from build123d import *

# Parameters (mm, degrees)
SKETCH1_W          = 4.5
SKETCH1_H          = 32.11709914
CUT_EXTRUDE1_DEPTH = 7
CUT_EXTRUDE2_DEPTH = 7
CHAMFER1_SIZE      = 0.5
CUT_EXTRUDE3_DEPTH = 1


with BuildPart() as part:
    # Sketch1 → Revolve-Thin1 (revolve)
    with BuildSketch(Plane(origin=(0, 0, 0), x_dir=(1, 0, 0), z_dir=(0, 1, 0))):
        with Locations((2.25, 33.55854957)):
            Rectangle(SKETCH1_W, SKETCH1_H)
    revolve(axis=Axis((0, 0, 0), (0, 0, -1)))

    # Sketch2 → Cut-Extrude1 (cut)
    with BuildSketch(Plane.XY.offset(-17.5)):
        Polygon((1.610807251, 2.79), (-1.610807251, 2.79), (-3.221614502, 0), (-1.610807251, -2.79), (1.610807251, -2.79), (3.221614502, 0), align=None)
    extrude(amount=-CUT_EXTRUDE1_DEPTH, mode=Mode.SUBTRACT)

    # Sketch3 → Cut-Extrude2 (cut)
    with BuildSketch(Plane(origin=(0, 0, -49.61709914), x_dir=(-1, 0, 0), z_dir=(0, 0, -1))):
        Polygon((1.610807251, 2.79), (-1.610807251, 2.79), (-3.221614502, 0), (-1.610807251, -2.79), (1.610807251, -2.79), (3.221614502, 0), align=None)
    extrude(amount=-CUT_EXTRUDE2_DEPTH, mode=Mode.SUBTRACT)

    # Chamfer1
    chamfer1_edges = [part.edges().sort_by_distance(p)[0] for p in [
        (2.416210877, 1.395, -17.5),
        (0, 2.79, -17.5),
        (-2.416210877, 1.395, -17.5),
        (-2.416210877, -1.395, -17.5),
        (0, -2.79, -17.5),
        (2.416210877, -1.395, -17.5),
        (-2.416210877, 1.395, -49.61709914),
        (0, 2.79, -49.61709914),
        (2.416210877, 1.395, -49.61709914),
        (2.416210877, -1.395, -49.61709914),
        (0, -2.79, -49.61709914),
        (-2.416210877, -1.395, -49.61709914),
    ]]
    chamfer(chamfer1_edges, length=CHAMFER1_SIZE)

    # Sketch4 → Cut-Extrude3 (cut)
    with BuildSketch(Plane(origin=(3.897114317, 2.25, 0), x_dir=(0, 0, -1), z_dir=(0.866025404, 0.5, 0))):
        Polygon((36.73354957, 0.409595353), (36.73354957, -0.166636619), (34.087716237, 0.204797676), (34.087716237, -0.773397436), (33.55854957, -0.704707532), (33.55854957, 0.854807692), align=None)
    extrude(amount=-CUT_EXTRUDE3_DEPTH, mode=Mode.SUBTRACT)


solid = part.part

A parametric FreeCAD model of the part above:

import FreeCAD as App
import Part
import Sketcher
Q = App.Units.Quantity


def edges_at(feature, points):
    """Names of the edges that pass closest to the given points."""
    edges = feature.Shape.Edges
    near = lambda p: min(range(len(edges)), key=lambda i: edges[i].distToShape(Part.Vertex(*p))[0])
    return sorted({f"Edge{near(p) + 1}" for p in points})


def add_polygon(sketch, points):
    """Adds a closed chain of lines whose ends are joined by coincident constraints."""
    first, n = sketch.GeometryCount, len(points)
    for a, b in zip(points, points[1:] + points[:1]):
        sketch.addGeometry(Part.LineSegment(App.Vector(*a, 0), App.Vector(*b, 0)), False)
    for i in range(n):
        sketch.addConstraint(Sketcher.Constraint("Coincident", first + i, 2, first + (i + 1) % n, 1))

doc = App.newDocument("Part")
body = doc.addObject("PartDesign::Body", "Body")

# Sketch on XZ plane
sketch1 = body.newObject("Sketcher::SketchObject", "Sketch")
sketch1.AttachmentSupport = (doc.getObject("XZ_Plane"), [""])
sketch1.MapMode = "FlatFace"
add_polygon(sketch1, [(0, -49.617099), (0, -17.5), (4.5, -17.5), (4.5, -49.617099)])  # lines 0-3
sketch1.addConstraint([
    Sketcher.Constraint("Vertical", 0),
    Sketcher.Constraint("Horizontal", 1),
    Sketcher.Constraint("Vertical", 2),
    Sketcher.Constraint("Horizontal", 3),
    Sketcher.Constraint("PointOnObject", 0, 2, -2),
    Sketcher.Constraint("DistanceX", 1, 1, 1, 2, Q("4.5 mm")),
    Sketcher.Constraint("DistanceY", 0, 2, -1, 1, Q("17.5 mm")),
    Sketcher.Constraint("DistanceY", 0, 1, 0, 2, Q("32.117099 mm")),
])
revolution = body.newObject("PartDesign::Revolution", "Revolution")
revolution.Profile = sketch1
revolution.ReferenceAxis = (sketch1, ["V_Axis"])
revolution.Angle = 360

# Sketch on XY plane
sketch2 = body.newObject("Sketcher::SketchObject", "Sketch001")
sketch2.AttachmentSupport = (doc.getObject("XY_Plane"), [""])
sketch2.MapMode = "FlatFace"
sketch2.AttachmentOffset = App.Placement(App.Vector(0, 0, -17.5), App.Rotation())
add_polygon(sketch2, [(1.610807, 2.79), (-1.610807, 2.79), (-3.221615, 0), (-1.610807, -2.79), (1.610807, -2.79), (3.221615, 0)])  # lines 0-5
sketch2.addConstraint([
    Sketcher.Constraint("Horizontal", 0),
    Sketcher.Constraint("Horizontal", 3),
    Sketcher.Constraint("Symmetric", 0, 2, 3, 2, -1, 1),
    Sketcher.Constraint("Symmetric", 1, 2, 4, 2, -1, 1),
    Sketcher.Constraint("PointOnObject", 1, 2, -1),
    Sketcher.Constraint("Parallel", 2, 5),
    Sketcher.Constraint("Vertical", 0, 2, 2, 2),
    Sketcher.Constraint("Angle", 1, Q("-120 deg")),
    Sketcher.Constraint("DistanceY", -1, 1, 0, 2, Q("2.79 mm")),
    Sketcher.Constraint("DistanceX", 0, 2, 0, 1, Q("3.221615 mm")),
])
pocket1 = body.newObject("PartDesign::Pocket", "Pocket")
pocket1.Profile = sketch2
pocket1.Length = 7

# Sketch on XY plane
sketch3 = body.newObject("Sketcher::SketchObject", "Sketch002")
sketch3.AttachmentSupport = (doc.getObject("XY_Plane"), [""])
sketch3.MapMode = "FlatFace"
sketch3.AttachmentOffset = App.Placement(App.Vector(0, 0, -49.617099), App.Rotation())
add_polygon(sketch3, [(-1.610807, 2.79), (1.610807, 2.79), (3.221615, 0), (1.610807, -2.79), (-1.610807, -2.79), (-3.221615, 0)])  # lines 0-5
sketch3.addConstraint([
    Sketcher.Constraint("Horizontal", 0),
    Sketcher.Constraint("Horizontal", 3),
    Sketcher.Constraint("Symmetric", 0, 2, 3, 2, -1, 1),
    Sketcher.Constraint("Symmetric", 1, 2, 4, 2, -1, 1),
    Sketcher.Constraint("PointOnObject", 1, 2, -1),
    Sketcher.Constraint("Parallel", 2, 5),
    Sketcher.Constraint("Vertical", 0, 2, 2, 2),
    Sketcher.Constraint("Angle", 1, Q("-60 deg")),
    Sketcher.Constraint("DistanceY", -1, 1, 0, 2, Q("2.79 mm")),
    Sketcher.Constraint("DistanceX", 0, 1, 0, 2, Q("3.221615 mm")),
])
pocket2 = body.newObject("PartDesign::Pocket", "Pocket001")
pocket2.Profile = sketch3
pocket2.Length = 7
pocket2.Reversed = True
doc.recompute()

chamfer = body.newObject("PartDesign::Chamfer", "Chamfer")
chamfer.Base = (pocket2, edges_at(pocket2, [
    (2.416, 1.395, -17.5),
    (0, 2.79, -17.5),
    (-2.416, 1.395, -17.5),
    (-2.416, -1.395, -17.5),
    (0, -2.79, -17.5),
    (2.416, -1.395, -17.5),
    (-2.416, 1.395, -49.617),
    (0, 2.79, -49.617),
    (2.416, 1.395, -49.617),
    (2.416, -1.395, -49.617),
    (0, -2.79, -49.617),
    (-2.416, -1.395, -49.617),
]))
chamfer.Size = 0.5

# Sketch on an angled plane
sketch4 = body.newObject("Sketcher::SketchObject", "Sketch003")
sketch4.Placement = App.Placement(App.Vector(3.897114, 2.25, 0), App.Rotation(App.Vector(0, 0, -1), App.Vector(-0.5, 0.866025404, 0), App.Vector(0.866025404, 0.5, 0), "ZXY"))
add_polygon(sketch4, [(36.73355, -0.166637), (36.73355, 0.409595), (33.55855, 0.854808), (33.55855, -0.704708), (34.087716, -0.773397), (34.087716, 0.204798)])  # lines 0-5
sketch4.addConstraint([
    Sketcher.Constraint("Vertical", 0),
    Sketcher.Constraint("Vertical", 2),
    Sketcher.Constraint("Vertical", 4),
    Sketcher.Constraint("DistanceX", 1, 2, 0, 2, Q("3.175 mm")),
    Sketcher.Constraint("DistanceY", 0, 1, 0, 2, Q("0.576232 mm")),
    Sketcher.Constraint("DistanceY", 2, 2, 2, 1, Q("1.559515 mm")),
    Sketcher.Constraint("DistanceY", 4, 1, 4, 2, Q("0.978195 mm")),
    Sketcher.Constraint("DistanceX", -1, 1, 0, 2, Q("36.73355 mm")),
    Sketcher.Constraint("DistanceY", 3, 2, 2, 2, Q("0.06869 mm")),
    Sketcher.Constraint("DistanceY", 3, 2, 5, 2, Q("0.606761 mm")),
    Sketcher.Constraint("Distance", 3, Q("0.533606 mm")),
    Sketcher.Constraint("DistanceY", -1, 1, 0, 2, Q("0.409595 mm")),
])
pocket3 = body.newObject("PartDesign::Pocket", "Pocket002")
pocket3.Profile = sketch4
pocket3.Length = 1

doc.recompute()
